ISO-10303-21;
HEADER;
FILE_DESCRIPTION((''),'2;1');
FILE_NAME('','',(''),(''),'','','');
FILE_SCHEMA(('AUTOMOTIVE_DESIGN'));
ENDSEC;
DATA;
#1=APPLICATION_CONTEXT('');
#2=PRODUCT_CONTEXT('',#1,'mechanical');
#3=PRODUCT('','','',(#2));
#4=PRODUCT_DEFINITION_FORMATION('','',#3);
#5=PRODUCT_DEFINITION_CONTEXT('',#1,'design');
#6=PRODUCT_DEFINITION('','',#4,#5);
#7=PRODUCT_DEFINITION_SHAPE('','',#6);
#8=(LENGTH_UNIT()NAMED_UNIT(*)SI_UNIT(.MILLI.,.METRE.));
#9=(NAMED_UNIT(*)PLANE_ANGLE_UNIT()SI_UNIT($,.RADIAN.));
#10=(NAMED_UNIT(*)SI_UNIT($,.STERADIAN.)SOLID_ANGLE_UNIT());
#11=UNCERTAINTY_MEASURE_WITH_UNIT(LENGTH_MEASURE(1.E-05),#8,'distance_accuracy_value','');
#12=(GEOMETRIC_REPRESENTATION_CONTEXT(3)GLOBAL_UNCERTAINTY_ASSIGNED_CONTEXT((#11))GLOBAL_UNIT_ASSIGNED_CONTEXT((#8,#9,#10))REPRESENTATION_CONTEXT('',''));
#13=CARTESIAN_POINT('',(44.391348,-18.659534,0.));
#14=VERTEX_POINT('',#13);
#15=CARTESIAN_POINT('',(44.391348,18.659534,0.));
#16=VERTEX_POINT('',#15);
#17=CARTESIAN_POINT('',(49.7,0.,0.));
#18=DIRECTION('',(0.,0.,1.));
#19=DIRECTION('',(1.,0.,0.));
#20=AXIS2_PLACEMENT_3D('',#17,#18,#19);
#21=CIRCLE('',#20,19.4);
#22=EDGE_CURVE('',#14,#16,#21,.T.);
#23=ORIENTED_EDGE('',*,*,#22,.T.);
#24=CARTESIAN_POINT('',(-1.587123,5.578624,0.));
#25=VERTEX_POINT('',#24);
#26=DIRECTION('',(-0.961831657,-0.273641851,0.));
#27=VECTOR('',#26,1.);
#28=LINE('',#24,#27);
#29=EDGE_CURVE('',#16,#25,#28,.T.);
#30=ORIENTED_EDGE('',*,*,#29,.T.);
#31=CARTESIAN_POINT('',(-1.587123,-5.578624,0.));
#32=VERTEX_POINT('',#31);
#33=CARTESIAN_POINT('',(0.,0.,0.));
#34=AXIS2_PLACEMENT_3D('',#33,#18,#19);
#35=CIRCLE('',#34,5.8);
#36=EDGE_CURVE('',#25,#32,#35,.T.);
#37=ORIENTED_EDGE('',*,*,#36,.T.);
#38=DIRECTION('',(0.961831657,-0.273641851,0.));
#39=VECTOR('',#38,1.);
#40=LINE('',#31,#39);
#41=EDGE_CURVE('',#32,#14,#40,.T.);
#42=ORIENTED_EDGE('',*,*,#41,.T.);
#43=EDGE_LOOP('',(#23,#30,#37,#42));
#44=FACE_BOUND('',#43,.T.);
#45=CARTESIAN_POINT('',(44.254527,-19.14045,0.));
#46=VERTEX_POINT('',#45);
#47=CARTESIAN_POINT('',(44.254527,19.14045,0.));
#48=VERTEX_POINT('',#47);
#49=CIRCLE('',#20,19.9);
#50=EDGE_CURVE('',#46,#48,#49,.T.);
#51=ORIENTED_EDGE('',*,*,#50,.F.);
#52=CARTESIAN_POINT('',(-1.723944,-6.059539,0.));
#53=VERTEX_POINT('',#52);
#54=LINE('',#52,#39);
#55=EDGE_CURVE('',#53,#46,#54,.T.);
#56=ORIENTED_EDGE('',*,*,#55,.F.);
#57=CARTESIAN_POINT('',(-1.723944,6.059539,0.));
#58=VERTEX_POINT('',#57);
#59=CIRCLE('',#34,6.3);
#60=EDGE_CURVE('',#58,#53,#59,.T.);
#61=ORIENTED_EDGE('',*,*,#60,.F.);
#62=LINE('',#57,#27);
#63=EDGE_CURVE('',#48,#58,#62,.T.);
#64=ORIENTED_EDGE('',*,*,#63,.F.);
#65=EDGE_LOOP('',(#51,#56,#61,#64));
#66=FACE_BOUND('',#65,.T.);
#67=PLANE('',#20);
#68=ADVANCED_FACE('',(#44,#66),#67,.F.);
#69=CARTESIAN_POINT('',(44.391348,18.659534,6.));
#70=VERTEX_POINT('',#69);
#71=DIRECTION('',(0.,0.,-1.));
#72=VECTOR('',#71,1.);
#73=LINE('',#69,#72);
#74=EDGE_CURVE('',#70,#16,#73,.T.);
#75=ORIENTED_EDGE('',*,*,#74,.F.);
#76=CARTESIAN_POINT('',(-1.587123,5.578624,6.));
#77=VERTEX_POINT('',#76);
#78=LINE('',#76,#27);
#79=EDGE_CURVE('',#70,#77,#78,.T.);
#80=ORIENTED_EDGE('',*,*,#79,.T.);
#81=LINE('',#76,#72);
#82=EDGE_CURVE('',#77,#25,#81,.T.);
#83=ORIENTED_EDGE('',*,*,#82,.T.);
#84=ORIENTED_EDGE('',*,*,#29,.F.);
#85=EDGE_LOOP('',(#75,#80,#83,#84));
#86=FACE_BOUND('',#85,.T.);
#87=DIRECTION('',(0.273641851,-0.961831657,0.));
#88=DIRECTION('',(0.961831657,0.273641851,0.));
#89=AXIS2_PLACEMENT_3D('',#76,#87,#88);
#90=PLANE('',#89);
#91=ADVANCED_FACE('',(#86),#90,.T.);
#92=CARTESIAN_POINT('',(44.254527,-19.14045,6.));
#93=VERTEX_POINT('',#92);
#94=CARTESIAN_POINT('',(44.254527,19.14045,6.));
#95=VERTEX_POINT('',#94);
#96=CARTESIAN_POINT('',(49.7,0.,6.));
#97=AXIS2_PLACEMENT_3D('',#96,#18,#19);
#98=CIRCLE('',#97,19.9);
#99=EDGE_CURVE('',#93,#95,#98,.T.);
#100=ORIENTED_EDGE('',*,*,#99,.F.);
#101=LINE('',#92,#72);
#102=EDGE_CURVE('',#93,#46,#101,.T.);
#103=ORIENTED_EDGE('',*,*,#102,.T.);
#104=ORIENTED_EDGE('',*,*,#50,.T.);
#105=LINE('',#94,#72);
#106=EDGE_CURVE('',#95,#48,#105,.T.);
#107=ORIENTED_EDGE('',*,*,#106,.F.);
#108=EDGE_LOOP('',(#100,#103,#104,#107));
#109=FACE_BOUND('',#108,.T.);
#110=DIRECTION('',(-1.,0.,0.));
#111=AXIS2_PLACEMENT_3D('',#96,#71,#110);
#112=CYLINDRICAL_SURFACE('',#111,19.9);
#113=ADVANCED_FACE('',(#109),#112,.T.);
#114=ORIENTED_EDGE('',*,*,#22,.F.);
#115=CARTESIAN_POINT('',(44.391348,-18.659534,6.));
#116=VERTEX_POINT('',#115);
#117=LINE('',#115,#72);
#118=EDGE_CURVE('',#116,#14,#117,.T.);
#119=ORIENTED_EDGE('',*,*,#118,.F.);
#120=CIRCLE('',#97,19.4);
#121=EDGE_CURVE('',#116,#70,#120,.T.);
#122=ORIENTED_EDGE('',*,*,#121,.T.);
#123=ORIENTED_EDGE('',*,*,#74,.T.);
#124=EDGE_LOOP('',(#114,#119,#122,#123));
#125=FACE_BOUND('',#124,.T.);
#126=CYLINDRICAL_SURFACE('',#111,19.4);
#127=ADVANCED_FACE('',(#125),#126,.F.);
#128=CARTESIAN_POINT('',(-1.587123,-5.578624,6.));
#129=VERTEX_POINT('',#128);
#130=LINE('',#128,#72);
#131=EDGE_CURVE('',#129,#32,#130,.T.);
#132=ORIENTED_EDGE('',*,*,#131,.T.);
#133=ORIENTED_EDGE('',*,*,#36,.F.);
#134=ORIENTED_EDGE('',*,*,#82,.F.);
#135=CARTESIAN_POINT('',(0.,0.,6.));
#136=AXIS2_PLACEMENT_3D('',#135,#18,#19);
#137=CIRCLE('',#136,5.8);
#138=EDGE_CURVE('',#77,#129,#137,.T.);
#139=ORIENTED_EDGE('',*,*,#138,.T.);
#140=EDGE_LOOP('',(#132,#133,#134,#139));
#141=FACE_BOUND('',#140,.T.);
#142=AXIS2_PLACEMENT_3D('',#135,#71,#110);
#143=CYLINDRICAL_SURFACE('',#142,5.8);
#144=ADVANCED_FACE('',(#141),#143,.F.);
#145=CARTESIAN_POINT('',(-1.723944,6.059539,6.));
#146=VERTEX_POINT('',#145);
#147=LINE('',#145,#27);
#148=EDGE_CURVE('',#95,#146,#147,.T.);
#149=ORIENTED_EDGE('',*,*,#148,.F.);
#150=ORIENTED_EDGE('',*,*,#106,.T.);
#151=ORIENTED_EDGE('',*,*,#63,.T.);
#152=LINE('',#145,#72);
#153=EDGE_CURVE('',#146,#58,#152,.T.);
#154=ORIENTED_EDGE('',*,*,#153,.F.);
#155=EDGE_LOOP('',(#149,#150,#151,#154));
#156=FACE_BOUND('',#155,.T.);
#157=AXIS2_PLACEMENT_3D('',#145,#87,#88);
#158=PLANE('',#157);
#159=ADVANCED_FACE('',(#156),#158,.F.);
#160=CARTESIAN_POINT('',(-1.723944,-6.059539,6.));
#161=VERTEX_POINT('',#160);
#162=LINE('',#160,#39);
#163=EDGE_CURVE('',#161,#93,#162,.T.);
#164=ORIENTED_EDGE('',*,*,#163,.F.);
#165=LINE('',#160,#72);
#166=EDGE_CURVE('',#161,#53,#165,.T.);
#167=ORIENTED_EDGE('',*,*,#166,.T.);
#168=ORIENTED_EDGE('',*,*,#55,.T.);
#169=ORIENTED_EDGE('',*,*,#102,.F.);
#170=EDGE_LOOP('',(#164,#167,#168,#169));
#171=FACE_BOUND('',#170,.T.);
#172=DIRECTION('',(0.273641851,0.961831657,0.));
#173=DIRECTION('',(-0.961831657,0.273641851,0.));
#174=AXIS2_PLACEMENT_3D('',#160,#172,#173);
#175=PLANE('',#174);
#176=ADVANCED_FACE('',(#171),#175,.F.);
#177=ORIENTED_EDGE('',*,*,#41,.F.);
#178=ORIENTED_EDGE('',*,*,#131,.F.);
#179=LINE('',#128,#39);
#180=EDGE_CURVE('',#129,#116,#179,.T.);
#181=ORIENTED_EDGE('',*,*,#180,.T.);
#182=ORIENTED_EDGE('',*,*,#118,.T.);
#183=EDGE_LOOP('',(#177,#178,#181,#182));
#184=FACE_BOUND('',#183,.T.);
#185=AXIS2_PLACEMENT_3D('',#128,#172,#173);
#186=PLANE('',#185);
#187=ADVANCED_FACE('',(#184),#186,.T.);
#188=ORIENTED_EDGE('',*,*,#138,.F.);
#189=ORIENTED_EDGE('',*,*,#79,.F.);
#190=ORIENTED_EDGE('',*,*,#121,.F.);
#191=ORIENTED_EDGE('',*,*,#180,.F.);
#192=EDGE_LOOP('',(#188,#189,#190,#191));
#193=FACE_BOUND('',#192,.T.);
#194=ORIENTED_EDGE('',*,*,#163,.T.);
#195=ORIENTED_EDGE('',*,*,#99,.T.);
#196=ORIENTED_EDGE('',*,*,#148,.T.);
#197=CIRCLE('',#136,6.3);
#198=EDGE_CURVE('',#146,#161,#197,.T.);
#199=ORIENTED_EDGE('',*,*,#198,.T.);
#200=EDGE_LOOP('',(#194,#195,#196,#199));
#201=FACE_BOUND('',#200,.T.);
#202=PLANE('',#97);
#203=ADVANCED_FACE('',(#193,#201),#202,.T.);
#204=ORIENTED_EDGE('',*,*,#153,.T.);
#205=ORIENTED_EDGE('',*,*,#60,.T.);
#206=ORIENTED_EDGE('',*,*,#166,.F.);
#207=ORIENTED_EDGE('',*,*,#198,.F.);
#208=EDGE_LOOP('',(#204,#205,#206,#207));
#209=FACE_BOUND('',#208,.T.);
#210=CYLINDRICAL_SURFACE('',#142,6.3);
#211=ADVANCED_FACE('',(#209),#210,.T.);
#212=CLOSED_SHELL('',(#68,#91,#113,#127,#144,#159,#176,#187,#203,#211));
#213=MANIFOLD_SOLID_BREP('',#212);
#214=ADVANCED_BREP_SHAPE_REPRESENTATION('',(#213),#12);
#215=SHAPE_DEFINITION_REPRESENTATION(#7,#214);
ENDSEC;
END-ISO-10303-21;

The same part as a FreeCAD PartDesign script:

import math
import FreeCAD as App
import Part
import Sketcher

V = App.Vector

doc = App.newDocument("Part")
body = doc.addObject("PartDesign::Body", "Body")

# Sketch on XY plane
sketch1 = body.newObject("Sketcher::SketchObject", "Sketch")
sketch1.AttachmentSupport = (doc.getObject("XY_Plane"), [""])
sketch1.MapMode = "FlatFace"
sketch1.addGeometry([
    Part.LineSegment(V(44, 19, 0), V(-2, 6, 0)),  # 0
    Part.ArcOfCircle(Part.Circle(V(0, 0, 0), V(0, 0, 1), 6), math.radians(106), math.radians(254)),  # 1
    Part.LineSegment(V(-2, -6, 0), V(44, -19, 0)),  # 2
    Part.ArcOfCircle(Part.Circle(V(50, 0, 0), V(0, 0, 1), 20), math.radians(-106), math.radians(106)),  # 3
    Part.LineSegment(V(-2, 6, 0), V(44, 19, 0)),  # 4
    Part.ArcOfCircle(Part.Circle(V(50, 0, 0), V(0, 0, 1), 19), math.radians(-106), math.radians(106)),  # 5
    Part.LineSegment(V(44, -19, 0), V(-2, -6, 0)),  # 6
    Part.ArcOfCircle(Part.Circle(V(0, 0, 0), V(0, 0, 1), 6), math.radians(106), math.radians(254)),  # 7
], False)
sketch1.addConstraint([
    Sketcher.Constraint("Tangent", 0, 2, 1, 1),
    Sketcher.Constraint("Tangent", 1, 2, 2, 1),
    Sketcher.Constraint("Tangent", 2, 2, 3, 1),
    Sketcher.Constraint("Tangent", 3, 2, 0, 1),
    Sketcher.Constraint("Tangent", 4, 2, 5, 2),
    Sketcher.Constraint("Tangent", 5, 1, 6, 1),
    Sketcher.Constraint("Tangent", 6, 2, 7, 2),
    Sketcher.Constraint("Tangent", 7, 1, 4, 1),
    Sketcher.Constraint("Coincident", 1, 3, -1, 1),
    Sketcher.Constraint("Coincident", 7, 3, -1, 1),
    Sketcher.Constraint("Coincident", 5, 3, 3, 3),
    Sketcher.Constraint("PointOnObject", 3, 3, -1),
    Sketcher.Constraint("Parallel", 0, 4),
    Sketcher.Constraint("Radius", 1, 6.3),
    Sketcher.Constraint("Radius", 3, 19.9),
    Sketcher.Constraint("Radius", 5, 19.4),
    Sketcher.Constraint("DistanceX", -1, 1, 3, 3, 49.7),
])
pad1 = body.newObject("PartDesign::Pad", "Pad")
pad1.Profile = sketch1
pad1.Length = 6

doc.recompute()
